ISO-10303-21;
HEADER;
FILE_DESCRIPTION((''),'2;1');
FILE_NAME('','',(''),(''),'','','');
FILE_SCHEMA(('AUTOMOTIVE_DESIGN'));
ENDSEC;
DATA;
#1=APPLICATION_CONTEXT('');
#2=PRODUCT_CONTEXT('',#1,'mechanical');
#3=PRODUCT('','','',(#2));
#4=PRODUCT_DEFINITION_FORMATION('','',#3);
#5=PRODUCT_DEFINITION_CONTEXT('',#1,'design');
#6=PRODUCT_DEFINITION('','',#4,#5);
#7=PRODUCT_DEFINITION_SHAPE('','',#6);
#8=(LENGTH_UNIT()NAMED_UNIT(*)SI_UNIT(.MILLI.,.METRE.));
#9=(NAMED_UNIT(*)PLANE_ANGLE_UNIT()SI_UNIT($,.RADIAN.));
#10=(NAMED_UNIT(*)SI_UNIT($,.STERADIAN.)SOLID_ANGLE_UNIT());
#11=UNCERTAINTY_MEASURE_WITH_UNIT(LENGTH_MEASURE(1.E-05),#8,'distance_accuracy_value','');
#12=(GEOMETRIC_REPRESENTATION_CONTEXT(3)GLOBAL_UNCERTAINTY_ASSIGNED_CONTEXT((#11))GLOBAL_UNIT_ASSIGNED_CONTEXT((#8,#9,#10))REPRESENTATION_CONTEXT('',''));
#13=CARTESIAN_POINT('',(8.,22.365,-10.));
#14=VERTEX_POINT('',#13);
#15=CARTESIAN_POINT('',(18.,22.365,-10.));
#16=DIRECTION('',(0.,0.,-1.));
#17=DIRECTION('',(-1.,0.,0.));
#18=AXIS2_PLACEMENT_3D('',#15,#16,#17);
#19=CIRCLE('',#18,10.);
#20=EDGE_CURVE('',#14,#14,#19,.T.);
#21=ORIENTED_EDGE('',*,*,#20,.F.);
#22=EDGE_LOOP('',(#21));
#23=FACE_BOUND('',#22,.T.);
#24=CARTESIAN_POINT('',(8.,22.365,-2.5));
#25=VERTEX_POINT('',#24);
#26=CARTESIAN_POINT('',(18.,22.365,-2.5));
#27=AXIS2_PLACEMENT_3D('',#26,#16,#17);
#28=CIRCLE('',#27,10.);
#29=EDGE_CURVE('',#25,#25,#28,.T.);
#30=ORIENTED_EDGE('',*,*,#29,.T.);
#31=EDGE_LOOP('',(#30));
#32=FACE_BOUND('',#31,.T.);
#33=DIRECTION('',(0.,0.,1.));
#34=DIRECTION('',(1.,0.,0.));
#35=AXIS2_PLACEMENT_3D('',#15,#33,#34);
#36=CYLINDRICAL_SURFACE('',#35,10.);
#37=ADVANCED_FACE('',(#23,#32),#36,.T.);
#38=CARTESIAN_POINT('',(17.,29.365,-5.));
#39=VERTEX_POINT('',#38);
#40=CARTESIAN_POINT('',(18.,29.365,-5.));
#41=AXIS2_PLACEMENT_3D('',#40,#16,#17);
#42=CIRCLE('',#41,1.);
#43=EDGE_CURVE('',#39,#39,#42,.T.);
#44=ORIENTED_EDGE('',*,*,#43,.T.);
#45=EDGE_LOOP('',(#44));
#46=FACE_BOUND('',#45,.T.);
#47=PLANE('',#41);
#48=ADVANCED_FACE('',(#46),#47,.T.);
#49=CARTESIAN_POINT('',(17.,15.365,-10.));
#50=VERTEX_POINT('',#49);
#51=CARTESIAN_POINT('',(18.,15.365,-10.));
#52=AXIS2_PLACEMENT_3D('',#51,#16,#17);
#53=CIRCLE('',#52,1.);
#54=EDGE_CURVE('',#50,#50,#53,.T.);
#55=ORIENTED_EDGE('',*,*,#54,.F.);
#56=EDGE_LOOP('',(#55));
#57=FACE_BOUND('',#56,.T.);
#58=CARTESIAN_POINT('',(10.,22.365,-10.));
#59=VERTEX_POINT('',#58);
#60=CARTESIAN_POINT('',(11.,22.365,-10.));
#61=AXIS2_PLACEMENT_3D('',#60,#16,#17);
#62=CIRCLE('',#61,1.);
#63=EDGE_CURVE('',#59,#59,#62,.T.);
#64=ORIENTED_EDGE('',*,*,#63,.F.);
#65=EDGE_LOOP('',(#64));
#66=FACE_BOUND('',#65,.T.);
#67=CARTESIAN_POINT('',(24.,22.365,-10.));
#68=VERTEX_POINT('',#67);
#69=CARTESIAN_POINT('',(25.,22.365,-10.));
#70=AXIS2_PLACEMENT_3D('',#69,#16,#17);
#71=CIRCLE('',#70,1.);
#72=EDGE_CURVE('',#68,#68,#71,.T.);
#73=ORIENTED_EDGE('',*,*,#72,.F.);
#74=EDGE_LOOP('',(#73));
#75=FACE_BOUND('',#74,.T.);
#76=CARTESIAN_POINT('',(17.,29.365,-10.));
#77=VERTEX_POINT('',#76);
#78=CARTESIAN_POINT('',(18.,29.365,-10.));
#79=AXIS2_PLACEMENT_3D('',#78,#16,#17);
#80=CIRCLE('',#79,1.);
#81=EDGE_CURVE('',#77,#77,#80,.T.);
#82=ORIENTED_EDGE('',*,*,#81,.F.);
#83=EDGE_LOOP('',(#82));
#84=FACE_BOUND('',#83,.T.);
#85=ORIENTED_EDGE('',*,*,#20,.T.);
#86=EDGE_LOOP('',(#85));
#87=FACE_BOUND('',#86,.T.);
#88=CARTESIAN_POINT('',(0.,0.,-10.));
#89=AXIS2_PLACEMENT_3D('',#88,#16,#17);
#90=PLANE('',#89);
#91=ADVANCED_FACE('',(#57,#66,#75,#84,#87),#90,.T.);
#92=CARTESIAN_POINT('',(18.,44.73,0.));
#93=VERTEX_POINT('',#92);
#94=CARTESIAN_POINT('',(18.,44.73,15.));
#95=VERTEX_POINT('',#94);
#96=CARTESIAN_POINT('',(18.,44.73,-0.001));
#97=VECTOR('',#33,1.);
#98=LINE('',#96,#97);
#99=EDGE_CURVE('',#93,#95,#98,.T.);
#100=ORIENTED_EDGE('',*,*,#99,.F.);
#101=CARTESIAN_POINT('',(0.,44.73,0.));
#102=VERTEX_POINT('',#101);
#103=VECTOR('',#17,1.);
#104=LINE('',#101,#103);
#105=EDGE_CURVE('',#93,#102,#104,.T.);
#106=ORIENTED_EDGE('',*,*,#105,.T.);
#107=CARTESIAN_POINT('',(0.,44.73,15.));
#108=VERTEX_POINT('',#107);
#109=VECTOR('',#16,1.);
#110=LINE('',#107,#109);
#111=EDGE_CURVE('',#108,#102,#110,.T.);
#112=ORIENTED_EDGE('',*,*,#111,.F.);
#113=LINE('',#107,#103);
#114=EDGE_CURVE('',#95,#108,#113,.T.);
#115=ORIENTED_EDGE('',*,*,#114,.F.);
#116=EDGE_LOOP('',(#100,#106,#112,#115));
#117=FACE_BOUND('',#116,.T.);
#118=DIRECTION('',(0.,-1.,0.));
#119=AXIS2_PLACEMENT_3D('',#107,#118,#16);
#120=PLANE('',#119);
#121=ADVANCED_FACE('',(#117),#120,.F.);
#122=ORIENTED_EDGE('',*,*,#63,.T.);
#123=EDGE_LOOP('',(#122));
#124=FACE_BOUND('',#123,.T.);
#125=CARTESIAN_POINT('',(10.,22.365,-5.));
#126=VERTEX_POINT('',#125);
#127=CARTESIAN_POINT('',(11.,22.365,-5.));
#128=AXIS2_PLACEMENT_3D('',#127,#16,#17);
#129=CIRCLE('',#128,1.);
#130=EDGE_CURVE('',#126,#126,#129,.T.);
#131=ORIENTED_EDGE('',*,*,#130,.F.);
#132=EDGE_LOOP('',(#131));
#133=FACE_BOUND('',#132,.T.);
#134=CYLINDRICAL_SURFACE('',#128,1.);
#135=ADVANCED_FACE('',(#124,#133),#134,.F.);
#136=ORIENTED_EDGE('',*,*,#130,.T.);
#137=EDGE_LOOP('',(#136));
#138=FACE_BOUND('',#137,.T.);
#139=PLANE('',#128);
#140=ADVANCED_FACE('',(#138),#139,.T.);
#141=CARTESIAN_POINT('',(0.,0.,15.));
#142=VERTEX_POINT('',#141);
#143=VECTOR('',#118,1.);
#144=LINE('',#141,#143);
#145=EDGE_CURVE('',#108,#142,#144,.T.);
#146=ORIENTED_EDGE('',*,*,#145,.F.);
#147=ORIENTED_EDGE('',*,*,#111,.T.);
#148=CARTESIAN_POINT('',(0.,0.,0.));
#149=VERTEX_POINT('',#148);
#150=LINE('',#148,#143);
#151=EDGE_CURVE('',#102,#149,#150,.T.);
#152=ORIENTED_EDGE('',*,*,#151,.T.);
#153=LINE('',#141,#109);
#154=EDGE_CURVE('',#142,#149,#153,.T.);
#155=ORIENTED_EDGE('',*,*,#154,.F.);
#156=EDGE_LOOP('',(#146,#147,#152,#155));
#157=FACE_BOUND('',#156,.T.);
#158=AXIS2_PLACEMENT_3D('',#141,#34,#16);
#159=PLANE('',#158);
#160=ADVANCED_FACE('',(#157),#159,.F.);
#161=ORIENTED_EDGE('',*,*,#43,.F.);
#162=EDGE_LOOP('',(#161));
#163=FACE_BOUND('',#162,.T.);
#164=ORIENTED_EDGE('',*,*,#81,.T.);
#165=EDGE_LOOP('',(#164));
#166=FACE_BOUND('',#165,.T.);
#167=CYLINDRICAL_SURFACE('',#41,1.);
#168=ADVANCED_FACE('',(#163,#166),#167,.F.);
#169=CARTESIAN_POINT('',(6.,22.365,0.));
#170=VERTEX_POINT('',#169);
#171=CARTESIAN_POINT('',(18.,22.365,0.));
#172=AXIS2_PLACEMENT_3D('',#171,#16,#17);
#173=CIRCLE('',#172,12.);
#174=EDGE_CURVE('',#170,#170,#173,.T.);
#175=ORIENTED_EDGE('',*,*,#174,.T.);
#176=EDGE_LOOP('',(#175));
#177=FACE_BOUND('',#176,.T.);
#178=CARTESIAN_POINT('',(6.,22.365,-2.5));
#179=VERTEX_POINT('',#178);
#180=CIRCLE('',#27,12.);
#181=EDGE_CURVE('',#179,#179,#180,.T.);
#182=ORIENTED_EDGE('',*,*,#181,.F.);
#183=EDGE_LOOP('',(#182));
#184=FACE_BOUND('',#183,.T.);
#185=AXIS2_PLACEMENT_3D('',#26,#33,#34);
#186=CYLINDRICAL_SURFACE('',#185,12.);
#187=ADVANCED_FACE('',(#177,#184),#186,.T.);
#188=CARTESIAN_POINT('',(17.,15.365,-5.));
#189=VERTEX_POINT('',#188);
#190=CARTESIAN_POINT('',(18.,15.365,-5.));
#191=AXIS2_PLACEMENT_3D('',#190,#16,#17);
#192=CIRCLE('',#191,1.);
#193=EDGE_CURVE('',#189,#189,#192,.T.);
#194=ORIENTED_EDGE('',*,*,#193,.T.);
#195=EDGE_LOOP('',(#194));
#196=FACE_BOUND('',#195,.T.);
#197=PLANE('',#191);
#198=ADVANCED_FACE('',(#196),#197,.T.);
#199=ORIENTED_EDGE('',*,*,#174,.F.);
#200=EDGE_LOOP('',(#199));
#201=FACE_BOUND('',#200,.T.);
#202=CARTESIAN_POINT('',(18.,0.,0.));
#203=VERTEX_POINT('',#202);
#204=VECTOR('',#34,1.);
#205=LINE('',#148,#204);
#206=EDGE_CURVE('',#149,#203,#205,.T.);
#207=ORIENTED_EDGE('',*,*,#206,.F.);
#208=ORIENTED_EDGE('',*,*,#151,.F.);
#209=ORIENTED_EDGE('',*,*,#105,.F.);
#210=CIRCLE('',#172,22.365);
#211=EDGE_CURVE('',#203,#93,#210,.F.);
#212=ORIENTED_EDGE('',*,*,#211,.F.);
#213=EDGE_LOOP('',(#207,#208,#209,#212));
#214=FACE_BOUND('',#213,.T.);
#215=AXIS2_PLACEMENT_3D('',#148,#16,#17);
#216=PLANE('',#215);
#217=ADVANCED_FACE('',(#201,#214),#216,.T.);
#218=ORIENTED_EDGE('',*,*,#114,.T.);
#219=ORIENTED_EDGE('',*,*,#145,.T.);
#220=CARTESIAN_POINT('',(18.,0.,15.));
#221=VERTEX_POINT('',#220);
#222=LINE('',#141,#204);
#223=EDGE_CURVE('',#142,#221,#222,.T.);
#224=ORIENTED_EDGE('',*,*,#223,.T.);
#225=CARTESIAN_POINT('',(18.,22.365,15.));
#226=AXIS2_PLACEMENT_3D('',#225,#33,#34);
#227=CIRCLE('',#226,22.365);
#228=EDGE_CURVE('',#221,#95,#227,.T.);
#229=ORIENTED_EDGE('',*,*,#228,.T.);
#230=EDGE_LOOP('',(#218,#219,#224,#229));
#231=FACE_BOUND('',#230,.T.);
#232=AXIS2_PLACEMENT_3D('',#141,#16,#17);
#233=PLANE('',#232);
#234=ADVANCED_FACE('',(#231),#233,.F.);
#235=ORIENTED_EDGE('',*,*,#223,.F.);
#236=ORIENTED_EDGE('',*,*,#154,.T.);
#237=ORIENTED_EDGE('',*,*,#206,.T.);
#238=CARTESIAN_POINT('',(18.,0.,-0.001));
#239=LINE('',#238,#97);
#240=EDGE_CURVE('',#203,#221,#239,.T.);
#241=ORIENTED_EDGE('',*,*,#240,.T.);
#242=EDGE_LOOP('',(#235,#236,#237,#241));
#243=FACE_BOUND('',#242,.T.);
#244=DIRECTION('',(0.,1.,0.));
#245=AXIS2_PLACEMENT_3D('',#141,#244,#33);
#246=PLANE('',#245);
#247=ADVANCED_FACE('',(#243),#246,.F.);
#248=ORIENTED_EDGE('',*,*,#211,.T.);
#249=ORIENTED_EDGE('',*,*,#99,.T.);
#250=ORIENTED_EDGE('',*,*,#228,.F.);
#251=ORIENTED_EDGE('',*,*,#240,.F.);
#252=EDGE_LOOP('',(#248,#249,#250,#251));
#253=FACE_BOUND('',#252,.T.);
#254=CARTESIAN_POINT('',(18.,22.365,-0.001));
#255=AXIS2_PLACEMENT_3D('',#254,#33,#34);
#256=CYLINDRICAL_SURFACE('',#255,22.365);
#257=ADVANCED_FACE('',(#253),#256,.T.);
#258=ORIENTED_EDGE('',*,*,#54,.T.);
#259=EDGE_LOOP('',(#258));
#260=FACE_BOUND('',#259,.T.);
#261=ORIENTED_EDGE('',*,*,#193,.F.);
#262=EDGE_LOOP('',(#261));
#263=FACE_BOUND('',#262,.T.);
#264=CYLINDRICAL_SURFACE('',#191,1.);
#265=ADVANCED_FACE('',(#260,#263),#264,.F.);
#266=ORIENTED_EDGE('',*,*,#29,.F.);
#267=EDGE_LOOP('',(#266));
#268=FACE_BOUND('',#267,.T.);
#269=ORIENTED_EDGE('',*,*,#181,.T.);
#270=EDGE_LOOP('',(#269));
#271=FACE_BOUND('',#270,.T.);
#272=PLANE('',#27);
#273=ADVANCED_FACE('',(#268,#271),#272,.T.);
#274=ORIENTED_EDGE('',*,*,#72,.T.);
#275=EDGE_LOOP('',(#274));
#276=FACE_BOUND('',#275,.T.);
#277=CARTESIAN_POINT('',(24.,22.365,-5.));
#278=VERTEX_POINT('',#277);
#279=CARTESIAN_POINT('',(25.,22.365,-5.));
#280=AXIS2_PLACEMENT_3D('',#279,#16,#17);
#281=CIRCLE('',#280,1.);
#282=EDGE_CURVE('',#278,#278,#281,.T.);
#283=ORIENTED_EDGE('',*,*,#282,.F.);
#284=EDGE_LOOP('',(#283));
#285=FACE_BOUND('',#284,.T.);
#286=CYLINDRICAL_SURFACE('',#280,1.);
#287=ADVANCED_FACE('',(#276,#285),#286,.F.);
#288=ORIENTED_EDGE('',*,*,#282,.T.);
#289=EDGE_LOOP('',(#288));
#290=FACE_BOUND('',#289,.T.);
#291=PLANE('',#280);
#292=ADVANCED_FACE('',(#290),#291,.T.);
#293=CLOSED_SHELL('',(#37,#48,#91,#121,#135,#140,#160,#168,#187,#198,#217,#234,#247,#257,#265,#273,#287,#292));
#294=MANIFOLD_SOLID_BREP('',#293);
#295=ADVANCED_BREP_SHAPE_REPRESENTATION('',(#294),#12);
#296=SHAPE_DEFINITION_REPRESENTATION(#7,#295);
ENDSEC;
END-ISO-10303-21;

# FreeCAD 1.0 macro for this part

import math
import FreeCAD as App
import Part
import Sketcher

V = App.Vector
Q = App.Units.Quantity


def add_polygon(sketch, points):
    """Adds a closed chain of lines whose ends are joined by coincident constraints."""
    first, n = sketch.GeometryCount, len(points)
    for a, b in zip(points, points[1:] + points[:1]):
        sketch.addGeometry(Part.LineSegment(App.Vector(*a, 0), App.Vector(*b, 0)), False)
    for i in range(n):
        sketch.addConstraint(Sketcher.Constraint("Coincident", first + i, 2, first + (i + 1) % n, 1))

doc = App.newDocument("Part")
body = doc.addObject("PartDesign::Body", "Body")

# Sketch on XY plane
sketch1 = body.newObject("Sketcher::SketchObject", "Sketch")
sketch1.AttachmentSupport = (doc.getObject("XY_Plane"), [""])
sketch1.MapMode = "FlatFace"
add_polygon(sketch1, [(0, 44.73), (0, 0), (189.06, 0), (189.06, 44.73)])  # lines 0-3
sketch1.addConstraint(Sketcher.Constraint("Vertical", 0))
sketch1.addConstraint(Sketcher.Constraint("Horizontal", 1))
sketch1.addConstraint(Sketcher.Constraint("Vertical", 2))
sketch1.addConstraint(Sketcher.Constraint("Horizontal", 3))
sketch1.addConstraint(Sketcher.Constraint("Coincident", 0, 2, -1, 1))
sketch1.addConstraint(Sketcher.Constraint("DistanceX", 1, 1, 1, 2, Q("189.06 mm")))
sketch1.addConstraint(Sketcher.Constraint("DistanceY", 0, 2, 0, 1, Q("44.73 mm")))
pad1 = body.newObject("PartDesign::Pad", "Pad")
pad1.Profile = sketch1
pad1.Length = 15

# Sketch on XY plane
sketch2 = body.newObject("Sketcher::SketchObject", "Sketch001")
sketch2.AttachmentSupport = (doc.getObject("XY_Plane"), [""])
sketch2.MapMode = "FlatFace"
sketch2.AttachmentOffset = App.Placement(V(0, 0, 15), App.Rotation())
sketch2.addGeometry(Part.LineSegment(V(189.06, 44.73, 0), V(18, 44.73, 0)), False)
sketch2.addGeometry(Part.ArcOfCircle(Part.Circle(V(18, 22.365, 0), V(0, 0, 1), 22.365), math.radians(-90), math.radians(90)), False)
sketch2.addGeometry(Part.LineSegment(V(18, 0, 0), V(189.06, 0, 0)), False)
sketch2.addGeometry(Part.LineSegment(V(189.06, 0, 0), V(189.06, 44.73, 0)), False)
sketch2.addConstraint(Sketcher.Constraint("Tangent", 0, 2, 1, 2))
sketch2.addConstraint(Sketcher.Constraint("Tangent", 1, 1, 2, 1))
sketch2.addConstraint(Sketcher.Constraint("Coincident", 2, 2, 3, 1))
sketch2.addConstraint(Sketcher.Constraint("Coincident", 3, 2, 0, 1))
sketch2.addConstraint(Sketcher.Constraint("Horizontal", 0))
sketch2.addConstraint(Sketcher.Constraint("Horizontal", 2))
sketch2.addConstraint(Sketcher.Constraint("Vertical", 3))
sketch2.addConstraint(Sketcher.Constraint("PointOnObject", 1, 1, -1))
sketch2.addConstraint(Sketcher.Constraint("DistanceX", -1, 1, 1, 3, Q("18 mm")))
sketch2.addConstraint(Sketcher.Constraint("Radius", 1, Q("22.365 mm")))
sketch2.addConstraint(Sketcher.Constraint("DistanceX", 0, 2, 0, 1, Q("171.06 mm")))
pocket1 = body.newObject("PartDesign::Pocket", "Pocket")
pocket1.Profile = sketch2
pocket1.Type = "UpToFirst"

# Sketch on XY plane
sketch3 = body.newObject("Sketcher::SketchObject", "Sketch002")
sketch3.AttachmentSupport = (doc.getObject("XY_Plane"), [""])
sketch3.MapMode = "FlatFace"
sketch3.addGeometry(Part.Circle(V(18, 22.365, 0), V(0, 0, 1), 10), False)
sketch3.addConstraint(Sketcher.Constraint("Diameter", 0, Q("20 mm")))
sketch3.addConstraint(Sketcher.Constraint("DistanceX", -1, 1, 0, 3, Q("18 mm")))
sketch3.addConstraint(Sketcher.Constraint("DistanceY", -1, 1, 0, 3, Q("22.365 mm")))
pad2 = body.newObject("PartDesign::Pad", "Pad001")
pad2.Profile = sketch3
pad2.Length = 10
pad2.Reversed = True

# Sketch on XY plane
sketch4 = body.newObject("Sketcher::SketchObject", "Sketch003")
sketch4.AttachmentSupport = (doc.getObject("XY_Plane"), [""])
sketch4.MapMode = "FlatFace"
sketch4.AttachmentOffset = App.Placement(V(0, 0, -10), App.Rotation())
sketch4.addGeometry(Part.Circle(V(18, 29.365, 0), V(0, 0, 1), 1), False)
sketch4.addGeometry(Part.Circle(V(11, 22.365, 0), V(0, 0, 1), 1), False)
sketch4.addGeometry(Part.Circle(V(18, 15.365, 0), V(0, 0, 1), 1), False)
sketch4.addGeometry(Part.Circle(V(25, 22.365, 0), V(0, 0, 1), 1), False)
sketch4.addConstraint(Sketcher.Constraint("Equal", 0, 1))
sketch4.addConstraint(Sketcher.Constraint("Equal", 1, 2))
sketch4.addConstraint(Sketcher.Constraint("Equal", 2, 3))
sketch4.addConstraint(Sketcher.Constraint("Horizontal", 1, 3, 3, 3))
sketch4.addConstraint(Sketcher.Constraint("Vertical", 0, 3, 2, 3))
sketch4.addConstraint(Sketcher.Constraint("Diameter", 0, Q("2 mm")))
sketch4.addConstraint(Sketcher.Constraint("DistanceX", -1, 1, 0, 3, Q("18 mm")))
sketch4.addConstraint(Sketcher.Constraint("DistanceX", -1, 1, 1, 3, Q("11 mm")))
sketch4.addConstraint(Sketcher.Constraint("DistanceX", -1, 1, 3, 3, Q("25 mm")))
sketch4.addConstraint(Sketcher.Constraint("DistanceY", 1, 3, 0, 3, Q("7 mm")))
sketch4.addConstraint(Sketcher.Constraint("DistanceY", 2, 3, 1, 3, Q("7 mm")))
sketch4.addConstraint(Sketcher.Constraint("DistanceY", -1, 1, 0, 3, Q("29.365 mm")))
pocket2 = body.newObject("PartDesign::Pocket", "Pocket001")
pocket2.Profile = sketch4
pocket2.Length = 5
pocket2.Reversed = True

# Sketch on XY plane
sketch5 = body.newObject("Sketcher::SketchObject", "Sketch004")
sketch5.AttachmentSupport = (doc.getObject("XY_Plane"), [""])
sketch5.MapMode = "FlatFace"
sketch5.addGeometry(Part.Circle(V(18, 22.365, 0), V(0, 0, 1), 12), False)
sketch5.addGeometry(Part.Circle(V(18, 22.365, 0), V(0, 0, 1), 10), False)
sketch5.addConstraint(Sketcher.Constraint("Coincident", 1, 3, 0, 3))
sketch5.addConstraint(Sketcher.Constraint("Diameter", 0, Q("24 mm")))
sketch5.addConstraint(Sketcher.Constraint("Diameter", 1, Q("20 mm")))
sketch5.addConstraint(Sketcher.Constraint("DistanceX", -1, 1, 0, 3, Q("18 mm")))
sketch5.addConstraint(Sketcher.Constraint("DistanceY", -1, 1, 0, 3, Q("22.365 mm")))
pad3 = body.newObject("PartDesign::Pad", "Pad002")
pad3.Profile = sketch5
pad3.Length = 2.5
pad3.Reversed = True

doc.recompute()
